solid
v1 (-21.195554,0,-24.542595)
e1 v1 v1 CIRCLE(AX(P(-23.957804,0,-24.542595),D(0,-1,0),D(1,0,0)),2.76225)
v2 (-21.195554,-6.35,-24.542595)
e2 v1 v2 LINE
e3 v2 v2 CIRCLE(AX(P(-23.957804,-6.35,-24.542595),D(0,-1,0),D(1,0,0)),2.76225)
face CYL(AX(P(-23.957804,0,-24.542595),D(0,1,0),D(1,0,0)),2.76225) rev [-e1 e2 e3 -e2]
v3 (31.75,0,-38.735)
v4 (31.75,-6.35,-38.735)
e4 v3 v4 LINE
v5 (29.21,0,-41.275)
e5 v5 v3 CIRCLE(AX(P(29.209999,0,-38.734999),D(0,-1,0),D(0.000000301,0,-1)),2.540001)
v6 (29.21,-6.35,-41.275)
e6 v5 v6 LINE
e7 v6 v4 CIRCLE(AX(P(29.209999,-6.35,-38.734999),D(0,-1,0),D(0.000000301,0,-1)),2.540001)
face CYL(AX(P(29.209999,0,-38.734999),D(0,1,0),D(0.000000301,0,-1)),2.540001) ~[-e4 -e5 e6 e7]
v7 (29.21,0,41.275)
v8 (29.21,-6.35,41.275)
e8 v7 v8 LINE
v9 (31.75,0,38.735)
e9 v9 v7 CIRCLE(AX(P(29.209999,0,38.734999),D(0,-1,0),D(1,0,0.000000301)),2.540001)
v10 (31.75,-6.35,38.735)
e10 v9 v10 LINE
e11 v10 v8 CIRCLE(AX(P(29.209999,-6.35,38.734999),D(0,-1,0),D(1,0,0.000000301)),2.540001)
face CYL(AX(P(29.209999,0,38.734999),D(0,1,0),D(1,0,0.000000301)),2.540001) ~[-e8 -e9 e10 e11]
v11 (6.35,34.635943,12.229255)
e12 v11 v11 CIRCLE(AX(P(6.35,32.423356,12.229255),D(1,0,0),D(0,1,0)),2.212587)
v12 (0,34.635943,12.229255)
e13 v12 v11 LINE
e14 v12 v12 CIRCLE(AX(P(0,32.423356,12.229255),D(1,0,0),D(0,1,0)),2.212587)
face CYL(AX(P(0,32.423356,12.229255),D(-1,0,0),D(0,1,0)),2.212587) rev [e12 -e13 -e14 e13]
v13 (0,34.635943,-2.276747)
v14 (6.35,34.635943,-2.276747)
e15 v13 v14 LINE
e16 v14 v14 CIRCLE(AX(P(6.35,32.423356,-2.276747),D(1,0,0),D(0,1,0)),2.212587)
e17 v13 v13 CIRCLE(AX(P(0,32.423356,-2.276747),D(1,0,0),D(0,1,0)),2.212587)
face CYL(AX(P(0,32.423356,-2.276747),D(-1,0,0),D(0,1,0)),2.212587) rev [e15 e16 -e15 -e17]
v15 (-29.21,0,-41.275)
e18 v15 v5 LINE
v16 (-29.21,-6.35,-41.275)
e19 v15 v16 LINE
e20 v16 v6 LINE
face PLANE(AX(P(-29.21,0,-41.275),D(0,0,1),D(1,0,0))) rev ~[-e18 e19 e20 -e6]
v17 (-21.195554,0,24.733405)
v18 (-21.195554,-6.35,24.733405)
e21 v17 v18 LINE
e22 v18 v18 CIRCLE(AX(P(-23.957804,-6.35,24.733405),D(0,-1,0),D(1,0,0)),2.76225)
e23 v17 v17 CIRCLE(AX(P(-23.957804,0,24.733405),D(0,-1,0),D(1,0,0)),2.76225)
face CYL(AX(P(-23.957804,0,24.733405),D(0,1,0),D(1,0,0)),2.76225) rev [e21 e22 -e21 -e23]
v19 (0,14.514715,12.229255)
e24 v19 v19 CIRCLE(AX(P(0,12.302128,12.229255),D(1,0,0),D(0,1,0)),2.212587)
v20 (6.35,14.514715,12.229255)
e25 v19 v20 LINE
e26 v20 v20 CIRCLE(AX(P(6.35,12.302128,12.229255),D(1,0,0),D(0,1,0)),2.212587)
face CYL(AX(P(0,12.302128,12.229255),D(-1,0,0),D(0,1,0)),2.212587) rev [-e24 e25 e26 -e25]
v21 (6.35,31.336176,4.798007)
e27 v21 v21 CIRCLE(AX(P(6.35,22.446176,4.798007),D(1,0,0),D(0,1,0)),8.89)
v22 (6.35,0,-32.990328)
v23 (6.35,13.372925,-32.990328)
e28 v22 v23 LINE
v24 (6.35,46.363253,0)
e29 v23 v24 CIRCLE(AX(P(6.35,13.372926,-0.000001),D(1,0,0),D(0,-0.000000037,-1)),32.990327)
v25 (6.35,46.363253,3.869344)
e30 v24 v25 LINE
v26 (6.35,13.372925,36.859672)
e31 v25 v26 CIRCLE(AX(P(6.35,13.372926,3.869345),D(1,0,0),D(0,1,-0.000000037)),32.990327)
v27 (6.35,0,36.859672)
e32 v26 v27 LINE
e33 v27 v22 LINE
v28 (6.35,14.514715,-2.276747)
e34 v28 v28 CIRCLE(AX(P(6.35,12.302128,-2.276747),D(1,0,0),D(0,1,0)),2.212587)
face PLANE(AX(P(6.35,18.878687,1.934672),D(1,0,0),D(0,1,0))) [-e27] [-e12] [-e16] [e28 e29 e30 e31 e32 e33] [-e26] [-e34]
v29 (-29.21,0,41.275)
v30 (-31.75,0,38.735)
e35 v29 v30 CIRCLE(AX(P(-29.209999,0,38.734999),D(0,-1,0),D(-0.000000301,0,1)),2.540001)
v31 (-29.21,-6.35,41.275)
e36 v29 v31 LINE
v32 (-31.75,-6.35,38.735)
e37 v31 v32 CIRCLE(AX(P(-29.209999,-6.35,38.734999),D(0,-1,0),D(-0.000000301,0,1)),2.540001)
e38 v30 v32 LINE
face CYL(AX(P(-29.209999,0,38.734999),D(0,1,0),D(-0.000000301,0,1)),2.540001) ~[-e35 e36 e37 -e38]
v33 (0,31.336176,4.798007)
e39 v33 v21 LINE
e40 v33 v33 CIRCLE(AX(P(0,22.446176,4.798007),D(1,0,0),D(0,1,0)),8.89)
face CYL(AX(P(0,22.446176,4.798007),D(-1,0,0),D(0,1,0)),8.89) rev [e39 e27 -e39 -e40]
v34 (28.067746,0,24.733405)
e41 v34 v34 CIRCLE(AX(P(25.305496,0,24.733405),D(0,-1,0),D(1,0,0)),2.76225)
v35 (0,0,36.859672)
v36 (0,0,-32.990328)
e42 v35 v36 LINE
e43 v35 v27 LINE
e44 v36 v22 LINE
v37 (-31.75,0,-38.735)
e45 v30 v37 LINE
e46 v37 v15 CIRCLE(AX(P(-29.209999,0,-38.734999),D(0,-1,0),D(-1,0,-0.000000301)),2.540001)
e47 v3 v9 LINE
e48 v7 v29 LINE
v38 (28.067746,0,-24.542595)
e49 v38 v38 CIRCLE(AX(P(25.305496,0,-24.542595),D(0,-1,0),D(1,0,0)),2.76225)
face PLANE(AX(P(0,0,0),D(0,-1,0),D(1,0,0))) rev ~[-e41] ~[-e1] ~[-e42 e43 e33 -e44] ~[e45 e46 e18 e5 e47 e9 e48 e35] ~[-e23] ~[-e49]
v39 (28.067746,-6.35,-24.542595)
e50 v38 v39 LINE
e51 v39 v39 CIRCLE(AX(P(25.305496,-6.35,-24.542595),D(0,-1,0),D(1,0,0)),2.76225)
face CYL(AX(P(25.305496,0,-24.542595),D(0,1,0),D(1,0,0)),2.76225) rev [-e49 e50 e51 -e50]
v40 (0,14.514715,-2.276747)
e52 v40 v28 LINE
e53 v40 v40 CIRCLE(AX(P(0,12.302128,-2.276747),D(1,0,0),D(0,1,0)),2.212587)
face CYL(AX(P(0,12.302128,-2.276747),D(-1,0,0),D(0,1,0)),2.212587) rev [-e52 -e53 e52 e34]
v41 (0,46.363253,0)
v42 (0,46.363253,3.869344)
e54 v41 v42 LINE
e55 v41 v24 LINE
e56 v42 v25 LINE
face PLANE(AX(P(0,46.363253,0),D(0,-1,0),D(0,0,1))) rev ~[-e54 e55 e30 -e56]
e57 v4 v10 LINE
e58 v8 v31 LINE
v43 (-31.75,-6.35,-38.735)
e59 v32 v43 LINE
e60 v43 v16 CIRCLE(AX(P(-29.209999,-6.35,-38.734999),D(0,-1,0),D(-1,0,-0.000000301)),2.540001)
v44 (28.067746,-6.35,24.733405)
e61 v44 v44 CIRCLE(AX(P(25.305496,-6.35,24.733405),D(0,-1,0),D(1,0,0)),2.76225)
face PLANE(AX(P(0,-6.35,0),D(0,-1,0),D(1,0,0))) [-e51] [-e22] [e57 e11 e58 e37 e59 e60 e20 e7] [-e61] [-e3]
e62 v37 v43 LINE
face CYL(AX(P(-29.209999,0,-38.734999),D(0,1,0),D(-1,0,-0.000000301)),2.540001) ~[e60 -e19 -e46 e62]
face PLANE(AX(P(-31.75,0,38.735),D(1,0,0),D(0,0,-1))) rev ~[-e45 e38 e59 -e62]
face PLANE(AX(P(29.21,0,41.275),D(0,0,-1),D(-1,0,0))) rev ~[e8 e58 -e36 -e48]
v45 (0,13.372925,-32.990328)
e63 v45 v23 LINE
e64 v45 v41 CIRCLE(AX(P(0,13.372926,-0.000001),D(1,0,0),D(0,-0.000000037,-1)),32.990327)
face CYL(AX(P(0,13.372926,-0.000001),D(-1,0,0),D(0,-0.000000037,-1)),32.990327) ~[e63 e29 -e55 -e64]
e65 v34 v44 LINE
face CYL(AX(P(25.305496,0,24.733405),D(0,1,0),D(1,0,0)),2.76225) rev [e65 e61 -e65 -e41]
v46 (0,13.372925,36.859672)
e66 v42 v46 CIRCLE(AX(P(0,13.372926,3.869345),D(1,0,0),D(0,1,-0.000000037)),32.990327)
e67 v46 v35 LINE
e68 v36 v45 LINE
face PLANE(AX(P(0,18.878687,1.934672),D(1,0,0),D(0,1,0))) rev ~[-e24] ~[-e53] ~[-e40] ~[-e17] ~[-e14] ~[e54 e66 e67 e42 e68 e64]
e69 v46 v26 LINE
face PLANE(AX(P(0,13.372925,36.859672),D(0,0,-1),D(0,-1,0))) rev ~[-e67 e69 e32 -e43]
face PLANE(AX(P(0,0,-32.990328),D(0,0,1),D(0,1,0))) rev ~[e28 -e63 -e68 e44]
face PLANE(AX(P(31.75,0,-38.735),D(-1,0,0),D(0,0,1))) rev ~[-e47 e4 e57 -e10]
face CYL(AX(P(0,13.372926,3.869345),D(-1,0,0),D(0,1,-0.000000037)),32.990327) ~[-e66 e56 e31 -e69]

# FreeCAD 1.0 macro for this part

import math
import FreeCAD as App
import Part
import Sketcher

V = App.Vector
Q = App.Units.Quantity

doc = App.newDocument("Part")
body = doc.addObject("PartDesign::Body", "Body")

sketch1 = doc.addObject("Sketcher::SketchObject", "Sketch")
body.addObject(sketch1)
sketch1.AttachmentSupport = (doc.XZ_Plane, [""])
sketch1.MapMode = "FlatFace"
sketch1.addGeometry([
    Part.ArcOfCircle(Part.Circle(V(29.2, 38.7, 0), V(0, 0, 1), 2.5), math.radians(0), math.radians(90)),
    Part.LineSegment(V(29.2, 41.3, 0), V(-29.2, 41.3, 0)),
    Part.ArcOfCircle(Part.Circle(V(-29.2, 38.7, 0), V(0, 0, 1), 2.5), math.radians(90), math.radians(180)),
    Part.LineSegment(V(-31.8, 38.7, 0), V(-31.8, -38.7, 0)),
    Part.ArcOfCircle(Part.Circle(V(-29.2, -38.7, 0), V(0, 0, 1), 2.5), math.radians(-180), math.radians(-90)),
    Part.LineSegment(V(-29.2, -41.3, 0), V(29.2, -41.3, 0)),
    Part.ArcOfCircle(Part.Circle(V(29.2, -38.7, 0), V(0, 0, 1), 2.5), math.radians(-90), math.radians(0)),
    Part.LineSegment(V(31.8, -38.7, 0), V(31.8, 38.7, 0)),
    Part.Circle(V(-24, -24.5, 0), V(0, 0, 1), 2.8),
    Part.Circle(V(25.3, -24.5, 0), V(0, 0, 1), 2.8),
    Part.Circle(V(-24, 24.7, 0), V(0, 0, 1), 2.8),
    Part.Circle(V(25.3, 24.7, 0), V(0, 0, 1), 2.8),
], False)
sketch1.addConstraint([
    Sketcher.Constraint("Tangent", 0, 2, 1, 1),
    Sketcher.Constraint("Tangent", 1, 2, 2, 1),
    Sketcher.Constraint("Tangent", 2, 2, 3, 1),
    Sketcher.Constraint("Tangent", 3, 2, 4, 1),
    Sketcher.Constraint("Tangent", 4, 2, 5, 1),
    Sketcher.Constraint("Tangent", 5, 2, 6, 1),
    Sketcher.Constraint("Tangent", 6, 2, 7, 1),
    Sketcher.Constraint("Tangent", 7, 2, 0, 1),
    Sketcher.Constraint("Horizontal", 1),
    Sketcher.Constraint("Vertical", 3),
    Sketcher.Constraint("Horizontal", 5),
    Sketcher.Constraint("Vertical", 7),
    Sketcher.Constraint("Equal", 0, 2),
    Sketcher.Constraint("Equal", 2, 4),
    Sketcher.Constraint("Equal", 4, 6),
    Sketcher.Constraint("Equal", 8, 9),
    Sketcher.Constraint("Equal", 9, 10),
    Sketcher.Constraint("Equal", 10, 11),
    Sketcher.Constraint("Symmetric", 0, 3, 4, 3, -1, 1),
    Sketcher.Constraint("Horizontal", 8, 3, 9, 3),
    Sketcher.Constraint("Horizontal", 10, 3, 11, 3),
    Sketcher.Constraint("Vertical", 8, 3, 10, 3),
    Sketcher.Constraint("Vertical", 9, 3, 11, 3),
    Sketcher.Constraint("Radius", 0, Q("0.1 in")),
    Sketcher.Constraint("DistanceX", 1, 2, 1, 1, Q("2.3 in")),
    Sketcher.Constraint("Diameter", 8, Q("0.2175 in")),
    Sketcher.Constraint("DistanceY", 3, 2, 3, 1, Q("3.05 in")),
    Sketcher.Constraint("DistanceY", 8, 3, 10, 3, Q("1.94 in")),
    Sketcher.Constraint("DistanceX", 8, 3, 9, 3, Q("1.9395 in")),
    Sketcher.Constraint("DistanceX", 8, 3, -1, 1, Q("23.957804 mm")),
    Sketcher.Constraint("DistanceY", 8, 3, -1, 1, Q("24.542595 mm")),
])
pad1 = doc.addObject("PartDesign::Pad", "Pad")
body.addObject(pad1)
pad1.Profile = sketch1
pad1.Length = Q("0.25 in")

sketch2 = doc.addObject("Sketcher::SketchObject", "Sketch001")
body.addObject(sketch2)
sketch2.AttachmentSupport = (doc.YZ_Plane, [""])
sketch2.MapMode = "FlatFace"
sketch2.addGeometry([
    Part.LineSegment(V(13.4, 36.9, 0), V(0, 36.9, 0)),
    Part.LineSegment(V(0, 36.9, 0), V(0, -33, 0)),
    Part.LineSegment(V(0, -33, 0), V(13.4, -33, 0)),
    Part.ArcOfCircle(Part.Circle(V(13.4, 0, 0), V(0, 0, 1), 33), math.radians(-90), math.radians(0)),
    Part.LineSegment(V(46.4, 0, 0), V(46.4, 3.9, 0)),
    Part.ArcOfCircle(Part.Circle(V(13.4, 3.9, 0), V(0, 0, 1), 33), math.radians(0), math.radians(90)),
    Part.Circle(V(12.3, -2.3, 0), V(0, 0, 1), 2.2),
    Part.Circle(V(32.4, -2.3, 0), V(0, 0, 1), 2.2),
    Part.Circle(V(22.4, 4.8, 0), V(0, 0, 1), 8.9),
    Part.Circle(V(12.3, 12.2, 0), V(0, 0, 1), 2.2),
    Part.Circle(V(32.4, 12.2, 0), V(0, 0, 1), 2.2),
], False)
sketch2.addConstraint([
    Sketcher.Constraint("Coincident", 0, 2, 1, 1),
    Sketcher.Constraint("Coincident", 1, 2, 2, 1),
    Sketcher.Constraint("Tangent", 2, 2, 3, 1),
    Sketcher.Constraint("Tangent", 3, 2, 4, 1),
    Sketcher.Constraint("Tangent", 4, 2, 5, 1),
    Sketcher.Constraint("Tangent", 5, 2, 0, 1),
    Sketcher.Constraint("Horizontal", 0),
    Sketcher.Constraint("Vertical", 1),
    Sketcher.Constraint("Horizontal", 2),
    Sketcher.Constraint("Vertical", 4),
    Sketcher.Constraint("Equal", 3, 5),
    Sketcher.Constraint("Equal", 6, 7),
    Sketcher.Constraint("Equal", 7, 9),
    Sketcher.Constraint("Equal", 9, 10),
    Sketcher.Constraint("PointOnObject", 3, 3, -1),
    Sketcher.Constraint("PointOnObject", 0, 2, -2),
    Sketcher.Constraint("Horizontal", 6, 3, 7, 3),
    Sketcher.Constraint("Horizontal", 9, 3, 10, 3),
    Sketcher.Constraint("Vertical", 6, 3, 9, 3),
    Sketcher.Constraint("Vertical", 7, 3, 10, 3),
    Sketcher.Constraint("Diameter", 8, Q("0.7 in")),
    Sketcher.Constraint("DistanceY", 1, 2, 1, 1, Q("2.75 in")),
    Sketcher.Constraint("Diameter", 6, Q("4.425174 mm")),
    Sketcher.Constraint("Radius", 3, Q("32.990327 mm")),
    Sketcher.Constraint("DistanceX", 6, 3, 3, 3, Q("1.070798 mm")),
    Sketcher.Constraint("DistanceX", 0, 2, 0, 1, Q("13.372925 mm")),
    Sketcher.Constraint("DistanceX", 3, 3, 7, 3, Q("19.05043 mm")),
    Sketcher.Constraint("DistanceX", 5, 3, 8, 3, Q("9.07325 mm")),
    Sketcher.Constraint("DistanceY", 5, 3, 8, 3, Q("0.928662 mm")),
    Sketcher.Constraint("DistanceY", 5, 3, 9, 3, Q("8.35991 mm")),
    Sketcher.Constraint("DistanceY", 1, 2, 6, 3, Q("30.713581 mm")),
])
pad2 = doc.addObject("PartDesign::Pad", "Pad001")
body.addObject(pad2)
pad2.Profile = sketch2
pad2.Length = Q("0.25 in")

doc.recompute()
